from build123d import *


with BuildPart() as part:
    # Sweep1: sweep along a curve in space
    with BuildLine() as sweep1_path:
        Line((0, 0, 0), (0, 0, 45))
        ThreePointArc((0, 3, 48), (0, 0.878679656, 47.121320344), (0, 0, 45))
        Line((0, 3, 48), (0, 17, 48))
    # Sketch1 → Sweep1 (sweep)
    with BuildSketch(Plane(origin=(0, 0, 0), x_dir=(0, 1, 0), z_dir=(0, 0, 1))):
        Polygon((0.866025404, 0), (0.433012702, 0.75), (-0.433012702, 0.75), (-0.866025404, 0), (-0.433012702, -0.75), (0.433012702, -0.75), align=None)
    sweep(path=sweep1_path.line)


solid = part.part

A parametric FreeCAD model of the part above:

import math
import FreeCAD as App
import Part
import Sketcher
from FreeCAD import Vector
Q = App.Units.Quantity

doc = App.newDocument("Part")
params = doc.addObject("Spreadsheet::Sheet", "Params")
for row, (alias, value) in enumerate([
    ("sketch2_radius", "3 mm"),
    ("sketch2_width", "14 mm"),
    ("sketch2_height", "45 mm"),
], start=1):
    params.set(f"A{row}", alias)
    params.set(f"B{row}", "=" + value)
    params.setAlias(f"B{row}", alias)

body = doc.addObject("PartDesign::Body", "Body")

sketch1 = doc.addObject("Sketcher::SketchObject", "Sketch")
body.addObject(sketch1)
sketch1.AttachmentSupport = (doc.XY_Plane, [""])
sketch1.MapMode = "FlatFace"
sketch1.addGeometry([
    Part.LineSegment(Vector(0, 0.9, 0), Vector(-0.8, 0.4, 0)),
    Part.LineSegment(Vector(-0.8, 0.4, 0), Vector(-0.8, -0.4, 0)),
    Part.LineSegment(Vector(-0.8, -0.4, 0), Vector(0, -0.9, 0)),
    Part.LineSegment(Vector(0, -0.9, 0), Vector(0.8, -0.4, 0)),
    Part.LineSegment(Vector(0.8, -0.4, 0), Vector(0.8, 0.4, 0)),
    Part.LineSegment(Vector(0.8, 0.4, 0), Vector(0, 0.9, 0)),
], False)
sketch1.addConstraint([
    Sketcher.Constraint("Coincident", 0, 2, 1, 1),
    Sketcher.Constraint("Coincident", 1, 2, 2, 1),
    Sketcher.Constraint("Coincident", 2, 2, 3, 1),
    Sketcher.Constraint("Coincident", 3, 2, 4, 1),
    Sketcher.Constraint("Coincident", 4, 2, 5, 1),
    Sketcher.Constraint("Coincident", 5, 2, 0, 1),
    Sketcher.Constraint("Vertical", 1),
    Sketcher.Constraint("Vertical", 4),
    Sketcher.Constraint("Symmetric", 0, 2, 3, 2, -1, 1),
    Sketcher.Constraint("Symmetric", 2, 2, 5, 2, -1, 1),
    Sketcher.Constraint("PointOnObject", 2, 2, -2),
    Sketcher.Constraint("Parallel", 2, 5),
    Sketcher.Constraint("Horizontal", 1, 2, 3, 2),
    Sketcher.Constraint("Angle", 0, Q("-150 deg")),
    Sketcher.Constraint("DistanceX", 1, 2, 3, 2, 1.5),
    Sketcher.Constraint("DistanceY", 1, 2, 1, 1, 0.866025),
])

sketch2 = doc.addObject("Sketcher::SketchObject", "Sketch001")
body.addObject(sketch2)
sketch2.AttachmentSupport = (doc.YZ_Plane, [""])
sketch2.MapMode = "FlatFace"
sketch2.addGeometry([
    Part.LineSegment(Vector(0, 0, 0), Vector(0, 45, 0)),
    Part.ArcOfCircle(Part.Circle(Vector(3, 45, 0), Vector(0, 0, 1), 3), math.radians(90), math.radians(180)),
    Part.LineSegment(Vector(3, 48, 0), Vector(17, 48, 0)),
], False)
sketch2.addConstraint([
    Sketcher.Constraint("Tangent", 0, 2, 1, 2),
    Sketcher.Constraint("Tangent", 1, 1, 2, 1),
    Sketcher.Constraint("Vertical", 0),
    Sketcher.Constraint("Horizontal", 2),
    Sketcher.Constraint("Coincident", 0, 1, -1, 1),
    Sketcher.Constraint("Radius", 1, 3.0),
    Sketcher.Constraint("DistanceX", 2, 1, 2, 2, 14.0),
    Sketcher.Constraint("DistanceY", 0, 1, 0, 2, 45.0),
])
sketch2.setExpression("Constraints[5]", "Params.sketch2_radius")
sketch2.setExpression("Constraints[6]", "Params.sketch2_width")
sketch2.setExpression("Constraints[7]", "Params.sketch2_height")
doc.recompute()

additivepipe = doc.addObject("PartDesign::AdditivePipe", "AdditivePipe")
body.addObject(additivepipe)
additivepipe.Profile = sketch1
additivepipe.Spine = (sketch2, ["Edge1", "Edge2", "Edge3"])

doc.recompute()
